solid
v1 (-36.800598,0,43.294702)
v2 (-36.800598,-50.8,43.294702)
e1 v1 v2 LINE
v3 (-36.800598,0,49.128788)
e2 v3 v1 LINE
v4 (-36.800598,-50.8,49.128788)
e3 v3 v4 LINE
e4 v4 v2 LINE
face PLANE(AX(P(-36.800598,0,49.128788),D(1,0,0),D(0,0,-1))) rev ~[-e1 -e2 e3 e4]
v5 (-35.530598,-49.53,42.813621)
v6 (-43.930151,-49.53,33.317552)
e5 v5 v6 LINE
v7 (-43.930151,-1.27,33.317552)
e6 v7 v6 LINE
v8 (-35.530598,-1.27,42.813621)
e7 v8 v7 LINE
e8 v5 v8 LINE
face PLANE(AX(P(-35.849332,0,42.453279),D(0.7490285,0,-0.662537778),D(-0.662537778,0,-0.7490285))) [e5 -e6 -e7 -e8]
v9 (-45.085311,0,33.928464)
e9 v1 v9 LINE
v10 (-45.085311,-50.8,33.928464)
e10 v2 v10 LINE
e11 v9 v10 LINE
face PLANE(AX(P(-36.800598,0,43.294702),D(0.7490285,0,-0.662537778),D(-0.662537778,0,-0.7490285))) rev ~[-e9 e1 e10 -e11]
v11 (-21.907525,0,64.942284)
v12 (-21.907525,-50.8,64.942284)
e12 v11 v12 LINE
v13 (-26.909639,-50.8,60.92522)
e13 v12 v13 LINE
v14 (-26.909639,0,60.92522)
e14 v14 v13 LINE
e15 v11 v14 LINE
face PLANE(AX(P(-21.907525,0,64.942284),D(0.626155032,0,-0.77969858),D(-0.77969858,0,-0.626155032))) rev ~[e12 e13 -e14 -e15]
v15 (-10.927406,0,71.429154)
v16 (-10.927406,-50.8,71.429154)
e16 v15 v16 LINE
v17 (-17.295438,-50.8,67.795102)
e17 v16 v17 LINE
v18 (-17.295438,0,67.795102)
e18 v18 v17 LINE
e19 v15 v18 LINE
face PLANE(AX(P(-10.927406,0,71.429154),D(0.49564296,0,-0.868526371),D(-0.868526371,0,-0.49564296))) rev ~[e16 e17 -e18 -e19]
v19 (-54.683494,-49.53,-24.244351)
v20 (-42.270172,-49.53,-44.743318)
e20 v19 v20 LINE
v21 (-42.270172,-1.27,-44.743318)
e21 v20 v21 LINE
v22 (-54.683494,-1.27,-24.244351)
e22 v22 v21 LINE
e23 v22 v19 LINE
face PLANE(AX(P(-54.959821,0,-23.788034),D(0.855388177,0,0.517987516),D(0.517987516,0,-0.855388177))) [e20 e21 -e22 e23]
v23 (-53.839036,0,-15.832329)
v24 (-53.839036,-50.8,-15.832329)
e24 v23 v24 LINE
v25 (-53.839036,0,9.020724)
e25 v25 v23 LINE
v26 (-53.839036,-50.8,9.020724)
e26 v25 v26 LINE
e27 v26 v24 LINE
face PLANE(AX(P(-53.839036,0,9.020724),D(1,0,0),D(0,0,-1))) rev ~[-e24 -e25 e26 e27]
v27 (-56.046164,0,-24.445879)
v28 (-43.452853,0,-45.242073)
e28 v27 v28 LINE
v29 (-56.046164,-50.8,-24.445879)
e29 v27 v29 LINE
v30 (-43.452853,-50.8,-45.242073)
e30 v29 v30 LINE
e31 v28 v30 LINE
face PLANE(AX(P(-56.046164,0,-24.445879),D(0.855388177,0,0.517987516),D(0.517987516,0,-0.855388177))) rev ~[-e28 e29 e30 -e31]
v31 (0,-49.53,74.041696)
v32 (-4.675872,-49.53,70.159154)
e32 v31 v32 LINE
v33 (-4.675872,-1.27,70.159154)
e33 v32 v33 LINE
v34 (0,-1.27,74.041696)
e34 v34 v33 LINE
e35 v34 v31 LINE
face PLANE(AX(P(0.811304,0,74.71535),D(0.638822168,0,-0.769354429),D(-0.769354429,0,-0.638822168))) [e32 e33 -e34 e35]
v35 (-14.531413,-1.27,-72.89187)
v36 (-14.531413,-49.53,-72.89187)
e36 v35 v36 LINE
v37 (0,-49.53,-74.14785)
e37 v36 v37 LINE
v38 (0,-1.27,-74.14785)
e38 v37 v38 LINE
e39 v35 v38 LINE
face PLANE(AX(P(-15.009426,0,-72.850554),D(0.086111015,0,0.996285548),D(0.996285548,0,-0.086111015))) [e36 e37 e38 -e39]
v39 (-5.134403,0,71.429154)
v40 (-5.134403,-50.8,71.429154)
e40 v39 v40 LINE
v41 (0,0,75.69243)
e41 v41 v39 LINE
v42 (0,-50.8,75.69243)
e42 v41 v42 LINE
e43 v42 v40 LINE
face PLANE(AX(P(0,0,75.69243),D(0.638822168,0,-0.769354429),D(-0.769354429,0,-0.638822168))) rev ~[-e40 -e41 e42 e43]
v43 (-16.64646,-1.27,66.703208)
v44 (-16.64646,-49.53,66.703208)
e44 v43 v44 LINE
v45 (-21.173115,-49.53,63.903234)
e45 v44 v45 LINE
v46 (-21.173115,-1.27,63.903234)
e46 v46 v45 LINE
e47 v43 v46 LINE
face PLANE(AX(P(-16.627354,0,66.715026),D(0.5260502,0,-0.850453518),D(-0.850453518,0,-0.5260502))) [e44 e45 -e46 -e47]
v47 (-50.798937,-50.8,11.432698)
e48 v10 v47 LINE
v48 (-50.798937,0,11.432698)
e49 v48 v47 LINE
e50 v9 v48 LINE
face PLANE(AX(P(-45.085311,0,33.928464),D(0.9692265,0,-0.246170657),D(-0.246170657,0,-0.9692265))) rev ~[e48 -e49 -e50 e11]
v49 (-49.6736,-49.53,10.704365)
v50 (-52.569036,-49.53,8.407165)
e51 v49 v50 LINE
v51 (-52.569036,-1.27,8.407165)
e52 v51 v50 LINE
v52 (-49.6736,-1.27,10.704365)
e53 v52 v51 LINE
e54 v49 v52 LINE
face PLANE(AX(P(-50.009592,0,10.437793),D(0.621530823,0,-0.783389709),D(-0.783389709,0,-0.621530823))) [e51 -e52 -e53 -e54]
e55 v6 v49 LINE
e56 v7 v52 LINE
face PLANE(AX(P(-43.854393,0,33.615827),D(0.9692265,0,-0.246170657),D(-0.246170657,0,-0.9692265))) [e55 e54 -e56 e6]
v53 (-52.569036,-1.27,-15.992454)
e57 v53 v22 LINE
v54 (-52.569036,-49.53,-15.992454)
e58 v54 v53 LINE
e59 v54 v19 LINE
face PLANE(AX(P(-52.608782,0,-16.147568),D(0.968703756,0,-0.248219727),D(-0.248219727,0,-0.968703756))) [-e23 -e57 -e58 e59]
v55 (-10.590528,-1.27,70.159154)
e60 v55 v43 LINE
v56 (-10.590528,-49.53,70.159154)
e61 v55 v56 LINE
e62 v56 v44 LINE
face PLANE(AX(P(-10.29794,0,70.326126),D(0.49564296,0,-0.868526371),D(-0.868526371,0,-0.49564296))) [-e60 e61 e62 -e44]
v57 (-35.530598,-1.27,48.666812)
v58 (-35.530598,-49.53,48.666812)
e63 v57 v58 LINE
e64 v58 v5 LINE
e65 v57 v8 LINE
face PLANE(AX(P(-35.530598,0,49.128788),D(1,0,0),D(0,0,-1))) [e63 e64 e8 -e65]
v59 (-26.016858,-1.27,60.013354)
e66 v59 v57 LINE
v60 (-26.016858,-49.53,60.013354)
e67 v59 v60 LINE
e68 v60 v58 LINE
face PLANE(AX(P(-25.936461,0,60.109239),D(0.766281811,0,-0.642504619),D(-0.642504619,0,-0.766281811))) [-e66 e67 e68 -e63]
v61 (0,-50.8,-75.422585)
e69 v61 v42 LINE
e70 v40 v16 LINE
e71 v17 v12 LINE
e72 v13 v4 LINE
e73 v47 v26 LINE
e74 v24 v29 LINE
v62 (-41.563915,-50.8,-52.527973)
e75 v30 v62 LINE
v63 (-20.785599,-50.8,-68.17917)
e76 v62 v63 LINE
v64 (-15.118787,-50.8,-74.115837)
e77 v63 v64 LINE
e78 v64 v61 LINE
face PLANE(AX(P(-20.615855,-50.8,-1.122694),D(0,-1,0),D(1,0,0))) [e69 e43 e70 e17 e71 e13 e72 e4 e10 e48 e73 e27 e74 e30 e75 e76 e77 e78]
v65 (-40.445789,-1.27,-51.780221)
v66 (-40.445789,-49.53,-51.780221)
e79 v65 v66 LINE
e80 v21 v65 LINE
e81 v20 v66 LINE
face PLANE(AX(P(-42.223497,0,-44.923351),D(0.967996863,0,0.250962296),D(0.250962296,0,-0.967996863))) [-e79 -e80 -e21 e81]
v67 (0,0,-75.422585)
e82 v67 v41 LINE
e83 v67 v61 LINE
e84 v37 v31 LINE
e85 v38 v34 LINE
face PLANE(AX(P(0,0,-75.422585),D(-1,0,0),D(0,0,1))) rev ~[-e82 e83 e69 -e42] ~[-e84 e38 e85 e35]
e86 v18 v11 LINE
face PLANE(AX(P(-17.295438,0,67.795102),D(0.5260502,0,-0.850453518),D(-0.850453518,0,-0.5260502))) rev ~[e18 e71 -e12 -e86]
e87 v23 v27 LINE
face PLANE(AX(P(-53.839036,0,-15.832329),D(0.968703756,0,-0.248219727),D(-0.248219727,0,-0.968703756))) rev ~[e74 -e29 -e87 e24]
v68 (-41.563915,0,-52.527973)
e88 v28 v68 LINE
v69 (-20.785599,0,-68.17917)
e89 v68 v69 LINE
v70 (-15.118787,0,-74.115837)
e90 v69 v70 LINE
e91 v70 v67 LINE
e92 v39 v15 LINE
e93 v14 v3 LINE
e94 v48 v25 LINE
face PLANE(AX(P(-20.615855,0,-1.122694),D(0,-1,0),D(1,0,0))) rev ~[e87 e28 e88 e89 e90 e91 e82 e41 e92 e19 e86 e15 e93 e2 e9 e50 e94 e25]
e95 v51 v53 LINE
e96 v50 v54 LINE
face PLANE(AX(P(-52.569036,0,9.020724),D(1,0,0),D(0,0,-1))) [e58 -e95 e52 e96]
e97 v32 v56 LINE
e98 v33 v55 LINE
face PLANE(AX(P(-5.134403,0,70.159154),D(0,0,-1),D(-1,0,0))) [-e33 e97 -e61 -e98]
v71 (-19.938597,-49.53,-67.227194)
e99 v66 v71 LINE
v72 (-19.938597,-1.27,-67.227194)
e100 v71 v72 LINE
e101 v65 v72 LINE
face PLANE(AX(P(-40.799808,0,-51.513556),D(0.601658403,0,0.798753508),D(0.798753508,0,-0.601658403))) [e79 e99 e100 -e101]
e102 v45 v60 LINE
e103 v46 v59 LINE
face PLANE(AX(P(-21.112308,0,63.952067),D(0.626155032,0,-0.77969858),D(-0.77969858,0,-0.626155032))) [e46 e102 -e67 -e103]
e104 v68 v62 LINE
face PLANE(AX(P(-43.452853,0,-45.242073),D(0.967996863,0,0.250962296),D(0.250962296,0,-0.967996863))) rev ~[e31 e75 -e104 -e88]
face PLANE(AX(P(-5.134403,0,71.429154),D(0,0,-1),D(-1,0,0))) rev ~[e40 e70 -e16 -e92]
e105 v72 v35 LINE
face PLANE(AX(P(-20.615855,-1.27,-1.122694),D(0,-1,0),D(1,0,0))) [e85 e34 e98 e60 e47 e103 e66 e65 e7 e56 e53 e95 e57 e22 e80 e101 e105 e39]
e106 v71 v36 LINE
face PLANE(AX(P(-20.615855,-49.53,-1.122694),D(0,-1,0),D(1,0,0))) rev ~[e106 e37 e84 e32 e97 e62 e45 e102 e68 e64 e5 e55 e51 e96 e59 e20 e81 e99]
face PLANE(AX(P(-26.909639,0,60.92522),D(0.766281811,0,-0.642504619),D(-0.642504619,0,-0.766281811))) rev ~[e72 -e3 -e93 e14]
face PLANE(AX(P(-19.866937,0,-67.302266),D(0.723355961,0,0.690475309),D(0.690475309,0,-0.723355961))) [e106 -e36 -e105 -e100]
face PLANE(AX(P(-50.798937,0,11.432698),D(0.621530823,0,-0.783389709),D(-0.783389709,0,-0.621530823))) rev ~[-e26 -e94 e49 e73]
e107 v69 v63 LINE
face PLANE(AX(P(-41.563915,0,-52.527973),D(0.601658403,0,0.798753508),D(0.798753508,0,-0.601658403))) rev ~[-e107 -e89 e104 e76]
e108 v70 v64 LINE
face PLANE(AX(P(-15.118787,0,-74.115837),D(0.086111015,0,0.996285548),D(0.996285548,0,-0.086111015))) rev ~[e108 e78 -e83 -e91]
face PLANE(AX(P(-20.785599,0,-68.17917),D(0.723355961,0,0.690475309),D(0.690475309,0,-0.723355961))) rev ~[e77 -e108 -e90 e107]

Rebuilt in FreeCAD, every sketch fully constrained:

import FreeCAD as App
import Part
import Sketcher
Q = App.Units.Quantity


def faces_at(feature, points):
    """Names of the faces that lie closest to the given points."""
    faces = feature.Shape.Faces
    near = lambda p: min(range(len(faces)), key=lambda i: faces[i].distToShape(Part.Vertex(*p))[0])
    return sorted({f"Face{near(p) + 1}" for p in points})

doc = App.newDocument("Part")
body = doc.addObject("PartDesign::Body", "Body")

sketch1 = body.newObject("Sketcher::SketchObject", "Sketch")
sketch1.AttachmentSupport = (doc.getObject("XZ_Plane"), [""])
sketch1.MapMode = "FlatFace"
sketch1.addGeometry([
    Part.LineSegment(App.Vector(0, -75.422585, 0), App.Vector(0, 75.69243, 0)),
    Part.LineSegment(App.Vector(0, 75.69243, 0), App.Vector(-5.134403, 71.429154, 0)),
    Part.LineSegment(App.Vector(-5.134403, 71.429154, 0), App.Vector(-10.927406, 71.429154, 0)),
    Part.LineSegment(App.Vector(-10.927406, 71.429154, 0), App.Vector(-17.295438, 67.795102, 0)),
    Part.LineSegment(App.Vector(-17.295438, 67.795102, 0), App.Vector(-21.907525, 64.942284, 0)),
    Part.LineSegment(App.Vector(-21.907525, 64.942284, 0), App.Vector(-26.909639, 60.92522, 0)),
    Part.LineSegment(App.Vector(-26.909639, 60.92522, 0), App.Vector(-36.800598, 49.128788, 0)),
    Part.LineSegment(App.Vector(-36.800598, 49.128788, 0), App.Vector(-36.800598, 43.294702, 0)),
    Part.LineSegment(App.Vector(-36.800598, 43.294702, 0), App.Vector(-45.085311, 33.928464, 0)),
    Part.LineSegment(App.Vector(-45.085311, 33.928464, 0), App.Vector(-50.798937, 11.432698, 0)),
    Part.LineSegment(App.Vector(-50.798937, 11.432698, 0), App.Vector(-53.839036, 9.020724, 0)),
    Part.LineSegment(App.Vector(-53.839036, 9.020724, 0), App.Vector(-53.839036, -15.832329, 0)),
    Part.LineSegment(App.Vector(-53.839036, -15.832329, 0), App.Vector(-56.046164, -24.445879, 0)),
    Part.LineSegment(App.Vector(-56.046164, -24.445879, 0), App.Vector(-43.452853, -45.242073, 0)),
    Part.LineSegment(App.Vector(-43.452853, -45.242073, 0), App.Vector(-41.563915, -52.527973, 0)),
    Part.LineSegment(App.Vector(-41.563915, -52.527973, 0), App.Vector(-20.785599, -68.17917, 0)),
    Part.LineSegment(App.Vector(-20.785599, -68.17917, 0), App.Vector(-15.118787, -74.115837, 0)),
    Part.LineSegment(App.Vector(-15.118787, -74.115837, 0), App.Vector(0, -75.422585, 0)),
], False)
sketch1.addConstraint([
    Sketcher.Constraint("Coincident", 0, 2, 1, 1),
    Sketcher.Constraint("Coincident", 1, 2, 2, 1),
    Sketcher.Constraint("Coincident", 2, 2, 3, 1),
    Sketcher.Constraint("Coincident", 3, 2, 4, 1),
    Sketcher.Constraint("Coincident", 4, 2, 5, 1),
    Sketcher.Constraint("Coincident", 5, 2, 6, 1),
    Sketcher.Constraint("Coincident", 6, 2, 7, 1),
    Sketcher.Constraint("Coincident", 7, 2, 8, 1),
    Sketcher.Constraint("Coincident", 8, 2, 9, 1),
    Sketcher.Constraint("Coincident", 9, 2, 10, 1),
    Sketcher.Constraint("Coincident", 10, 2, 11, 1),
    Sketcher.Constraint("Coincident", 11, 2, 12, 1),
    Sketcher.Constraint("Coincident", 12, 2, 13, 1),
    Sketcher.Constraint("Coincident", 13, 2, 14, 1),
    Sketcher.Constraint("Coincident", 14, 2, 15, 1),
    Sketcher.Constraint("Coincident", 15, 2, 16, 1),
    Sketcher.Constraint("Coincident", 16, 2, 17, 1),
    Sketcher.Constraint("Coincident", 17, 2, 0, 1),
    Sketcher.Constraint("Vertical", 0),
    Sketcher.Constraint("Horizontal", 2),
    Sketcher.Constraint("Vertical", 7),
    Sketcher.Constraint("Vertical", 11),
    Sketcher.Constraint("PointOnObject", 0, 2, -2),
    Sketcher.Constraint("Distance", 10, 3.880698),
    Sketcher.Constraint("DistanceY", -1, 1, 7, 2, 43.294702),
    Sketcher.Constraint("DistanceX", 15, 2, -1, 1, 20.785599),
    Sketcher.Constraint("DistanceX", 5, 2, 3, 2, 9.614201),
    Sketcher.Constraint("DistanceY", 7, 2, 3, 2, 24.500401),
    Sketcher.Constraint("DistanceX", 10, 2, 9, 2, 3.040099),
    Sketcher.Constraint("DistanceY", 14, 2, 13, 2, 7.2859),
    Sketcher.Constraint("Distance", 1, 6.673651),
    Sketcher.Constraint("Distance", 4, 5.423091),
    Sketcher.Constraint("Distance", 6, 15.394378),
    Sketcher.Constraint("Distance", 9, 23.21002),
    Sketcher.Constraint("Distance", 12, 8.891831),
    Sketcher.Constraint("Distance", 14, 7.526781),
    Sketcher.Constraint("DistanceX", 2, 2, 2, 1, 5.793003),
    Sketcher.Constraint("DistanceY", 0, 1, 0, 2, 151.115015),
    Sketcher.Constraint("DistanceY", 7, 2, 7, 1, 5.834087),
    Sketcher.Constraint("DistanceY", 11, 2, 11, 1, 24.853053),
    Sketcher.Constraint("DistanceY", -1, 1, 0, 2, 75.69243),
    Sketcher.Constraint("DistanceX", 5, 2, -1, 1, 26.909639),
    Sketcher.Constraint("DistanceY", -1, 1, 5, 2, 60.92522),
    Sketcher.Constraint("DistanceX", 8, 2, -1, 1, 45.085311),
    Sketcher.Constraint("DistanceY", 11, 2, -1, 1, 15.832329),
    Sketcher.Constraint("DistanceY", 12, 2, -1, 1, 24.445879),
    Sketcher.Constraint("DistanceY", 15, 2, -1, 1, 68.17917),
    Sketcher.Constraint("DistanceX", 3, 2, 2, 2, 6.368032),
    Sketcher.Constraint("DistanceY", 4, 2, 3, 2, 2.852818),
    Sketcher.Constraint("DistanceY", 8, 2, 4, 2, 31.01382),
    Sketcher.Constraint("DistanceX", 12, 2, 13, 2, 12.593311),
    Sketcher.Constraint("DistanceY", 13, 2, 9, 2, 56.674771),
    Sketcher.Constraint("DistanceX", 15, 2, 16, 2, 5.666812),
    Sketcher.Constraint("DistanceY", 16, 2, 12, 2, 49.669958),
])
pad1 = body.newObject("PartDesign::Pad", "Pad")
pad1.Profile = sketch1
pad1.Length = Q("2 in")
doc.recompute()

thickness = body.newObject("PartDesign::Thickness", "Thickness")
thickness.Base = (pad1, faces_at(pad1, [(0, -25.4, 0.135)]))
thickness.Value = Q("0.05 in")
thickness.Reversed = True
thickness.Join = "Intersection"

doc.recompute()
